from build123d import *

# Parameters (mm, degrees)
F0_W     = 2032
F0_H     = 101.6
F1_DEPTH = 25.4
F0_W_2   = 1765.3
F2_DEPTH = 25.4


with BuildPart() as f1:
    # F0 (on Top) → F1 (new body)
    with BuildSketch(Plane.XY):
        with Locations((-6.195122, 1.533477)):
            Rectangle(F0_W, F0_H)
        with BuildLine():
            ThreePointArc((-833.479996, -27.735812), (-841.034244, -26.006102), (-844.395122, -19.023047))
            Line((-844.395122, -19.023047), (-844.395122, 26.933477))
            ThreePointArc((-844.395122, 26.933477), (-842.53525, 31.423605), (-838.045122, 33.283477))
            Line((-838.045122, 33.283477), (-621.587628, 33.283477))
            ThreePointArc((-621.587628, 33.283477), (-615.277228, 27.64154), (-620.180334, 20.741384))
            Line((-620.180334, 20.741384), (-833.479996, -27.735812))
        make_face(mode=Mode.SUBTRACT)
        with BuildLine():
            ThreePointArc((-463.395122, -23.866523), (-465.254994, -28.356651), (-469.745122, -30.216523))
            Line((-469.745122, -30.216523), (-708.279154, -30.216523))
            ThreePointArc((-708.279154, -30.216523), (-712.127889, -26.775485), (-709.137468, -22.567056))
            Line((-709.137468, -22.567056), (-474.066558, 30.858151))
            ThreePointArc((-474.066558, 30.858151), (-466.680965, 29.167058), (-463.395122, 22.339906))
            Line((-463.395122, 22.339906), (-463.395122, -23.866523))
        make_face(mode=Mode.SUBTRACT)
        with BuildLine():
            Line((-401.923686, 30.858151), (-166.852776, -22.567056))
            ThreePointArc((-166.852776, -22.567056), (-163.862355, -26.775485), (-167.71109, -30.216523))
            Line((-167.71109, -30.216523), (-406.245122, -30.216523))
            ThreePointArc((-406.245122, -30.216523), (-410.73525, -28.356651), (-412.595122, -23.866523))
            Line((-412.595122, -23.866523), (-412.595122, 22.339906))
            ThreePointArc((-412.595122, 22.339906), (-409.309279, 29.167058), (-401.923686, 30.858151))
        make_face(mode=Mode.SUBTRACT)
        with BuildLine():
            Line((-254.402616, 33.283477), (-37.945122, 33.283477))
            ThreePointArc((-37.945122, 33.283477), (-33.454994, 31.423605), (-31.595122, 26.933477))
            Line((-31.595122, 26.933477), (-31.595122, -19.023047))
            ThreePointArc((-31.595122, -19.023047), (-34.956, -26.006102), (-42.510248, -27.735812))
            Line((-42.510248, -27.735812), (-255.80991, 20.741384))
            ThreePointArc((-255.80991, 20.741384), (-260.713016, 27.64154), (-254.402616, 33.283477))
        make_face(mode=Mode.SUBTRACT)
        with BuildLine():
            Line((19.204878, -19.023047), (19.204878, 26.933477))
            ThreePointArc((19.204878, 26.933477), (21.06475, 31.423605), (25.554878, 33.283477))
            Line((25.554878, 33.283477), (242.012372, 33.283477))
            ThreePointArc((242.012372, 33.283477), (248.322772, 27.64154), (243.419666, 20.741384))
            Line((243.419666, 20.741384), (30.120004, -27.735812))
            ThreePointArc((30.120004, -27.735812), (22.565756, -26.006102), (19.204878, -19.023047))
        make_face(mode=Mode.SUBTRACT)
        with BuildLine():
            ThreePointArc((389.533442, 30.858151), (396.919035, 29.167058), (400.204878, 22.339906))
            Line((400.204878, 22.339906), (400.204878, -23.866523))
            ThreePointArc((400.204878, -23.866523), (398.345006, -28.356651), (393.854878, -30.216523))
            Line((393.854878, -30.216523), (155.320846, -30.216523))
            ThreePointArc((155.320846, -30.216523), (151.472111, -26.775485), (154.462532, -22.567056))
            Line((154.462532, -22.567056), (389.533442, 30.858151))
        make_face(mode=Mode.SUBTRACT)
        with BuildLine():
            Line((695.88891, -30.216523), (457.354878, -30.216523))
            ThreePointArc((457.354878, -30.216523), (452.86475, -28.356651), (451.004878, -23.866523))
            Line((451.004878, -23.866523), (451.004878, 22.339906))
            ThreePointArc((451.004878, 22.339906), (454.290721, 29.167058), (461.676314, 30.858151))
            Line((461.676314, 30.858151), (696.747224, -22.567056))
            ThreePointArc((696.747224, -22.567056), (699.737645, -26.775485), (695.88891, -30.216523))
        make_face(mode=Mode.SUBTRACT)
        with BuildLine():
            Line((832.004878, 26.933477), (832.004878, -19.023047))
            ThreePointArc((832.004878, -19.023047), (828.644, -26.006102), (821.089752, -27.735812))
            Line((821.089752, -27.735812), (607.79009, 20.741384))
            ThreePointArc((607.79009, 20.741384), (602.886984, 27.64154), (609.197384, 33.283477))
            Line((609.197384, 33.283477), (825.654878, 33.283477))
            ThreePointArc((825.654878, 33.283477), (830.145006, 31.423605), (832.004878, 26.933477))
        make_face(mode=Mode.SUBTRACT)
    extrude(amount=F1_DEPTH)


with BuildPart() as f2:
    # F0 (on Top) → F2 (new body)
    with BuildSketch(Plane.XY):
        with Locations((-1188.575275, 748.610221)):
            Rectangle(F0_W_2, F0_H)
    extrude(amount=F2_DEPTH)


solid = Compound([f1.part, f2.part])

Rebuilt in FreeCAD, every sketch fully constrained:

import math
import FreeCAD as App
import Part
import Sketcher
Q = App.Units.Quantity

doc = App.newDocument("Part")
body = doc.addObject("PartDesign::Body", "Body")

# Sketch on XY plane
sketch1 = doc.addObject("Sketcher::SketchObject", "Sketch")
body.addObject(sketch1)
sketch1.AttachmentSupport = (doc.XY_Plane, [""])
sketch1.MapMode = "FlatFace"
sketch1.addGeometry(Part.LineSegment(App.Vector(-1022.2, 52.3, 0), App.Vector(-1022.2, -49.3, 0)), False)
sketch1.addGeometry(Part.LineSegment(App.Vector(-1022.2, -49.3, 0), App.Vector(1009.8, -49.3, 0)), False)
sketch1.addGeometry(Part.LineSegment(App.Vector(1009.8, -49.3, 0), App.Vector(1009.8, 52.3, 0)), False)
sketch1.addGeometry(Part.LineSegment(App.Vector(1009.8, 52.3, 0), App.Vector(-1022.2, 52.3, 0)), False)
sketch1.addGeometry(Part.LineSegment(App.Vector(-463.4, 22.3, 0), App.Vector(-463.4, -23.9, 0)), False)
sketch1.addGeometry(Part.ArcOfCircle(Part.Circle(App.Vector(-469.7, -23.9, 0), App.Vector(0, 0, 1), 6.4), math.radians(-90), math.radians(0)), False)
sketch1.addGeometry(Part.LineSegment(App.Vector(-469.7, -30.2, 0), App.Vector(-708.3, -30.2, 0)), False)
sketch1.addGeometry(Part.ArcOfCircle(Part.Circle(App.Vector(-708.3, -26.3, 0), App.Vector(0, 0, 1), 3.9), math.radians(103), math.radians(270)), False)
sketch1.addGeometry(Part.LineSegment(App.Vector(-709.1, -22.6, 0), App.Vector(-474.1, 30.9, 0)), False)
sketch1.addGeometry(Part.ArcOfCircle(Part.Circle(App.Vector(-472.1, 22.3, 0), App.Vector(0, 0, 1), 8.7), math.radians(0), math.radians(103)), False)
sketch1.addGeometry(Part.ArcOfCircle(Part.Circle(App.Vector(-403.9, 22.3, 0), App.Vector(0, 0, 1), 8.7), math.radians(77), math.radians(180)), False)
sketch1.addGeometry(Part.LineSegment(App.Vector(-401.9, 30.9, 0), App.Vector(-166.9, -22.6, 0)), False)
sketch1.addGeometry(Part.ArcOfCircle(Part.Circle(App.Vector(-167.7, -26.3, 0), App.Vector(0, 0, 1), 3.9), math.radians(-90), math.radians(77)), False)
sketch1.addGeometry(Part.LineSegment(App.Vector(-167.7, -30.2, 0), App.Vector(-406.2, -30.2, 0)), False)
sketch1.addGeometry(Part.ArcOfCircle(Part.Circle(App.Vector(-406.2, -23.9, 0), App.Vector(0, 0, 1), 6.4), math.radians(-180), math.radians(-90)), False)
sketch1.addGeometry(Part.LineSegment(App.Vector(-412.6, -23.9, 0), App.Vector(-412.6, 22.3, 0)), False)
sketch1.addGeometry(Part.LineSegment(App.Vector(154.5, -22.6, 0), App.Vector(389.5, 30.9, 0)), False)
sketch1.addGeometry(Part.ArcOfCircle(Part.Circle(App.Vector(391.5, 22.3, 0), App.Vector(0, 0, 1), 8.7), math.radians(0), math.radians(103)), False)
sketch1.addGeometry(Part.LineSegment(App.Vector(400.2, 22.3, 0), App.Vector(400.2, -23.9, 0)), False)
sketch1.addGeometry(Part.ArcOfCircle(Part.Circle(App.Vector(393.9, -23.9, 0), App.Vector(0, 0, 1), 6.4), math.radians(-90), math.radians(0)), False)
sketch1.addGeometry(Part.LineSegment(App.Vector(393.9, -30.2, 0), App.Vector(155.3, -30.2, 0)), False)
sketch1.addGeometry(Part.ArcOfCircle(Part.Circle(App.Vector(155.3, -26.3, 0), App.Vector(0, 0, 1), 3.9), math.radians(103), math.radians(270)), False)
sketch1.addGeometry(Part.ArcOfCircle(Part.Circle(App.Vector(695.9, -26.3, 0), App.Vector(0, 0, 1), 3.9), math.radians(-90), math.radians(77)), False)
sketch1.addGeometry(Part.LineSegment(App.Vector(695.9, -30.2, 0), App.Vector(457.4, -30.2, 0)), False)
sketch1.addGeometry(Part.ArcOfCircle(Part.Circle(App.Vector(457.4, -23.9, 0), App.Vector(0, 0, 1), 6.4), math.radians(-180), math.radians(-90)), False)
sketch1.addGeometry(Part.LineSegment(App.Vector(451, -23.9, 0), App.Vector(451, 22.3, 0)), False)
sketch1.addGeometry(Part.ArcOfCircle(Part.Circle(App.Vector(459.7, 22.3, 0), App.Vector(0, 0, 1), 8.7), math.radians(77), math.radians(180)), False)
sketch1.addGeometry(Part.LineSegment(App.Vector(461.7, 30.9, 0), App.Vector(696.7, -22.6, 0)), False)
sketch1.addGeometry(Part.LineSegment(App.Vector(-620.2, 20.7, 0), App.Vector(-833.5, -27.7, 0)), False)
sketch1.addGeometry(Part.ArcOfCircle(Part.Circle(App.Vector(-835.5, -19, 0), App.Vector(0, 0, 1), 8.9), math.radians(-180), math.radians(-77)), False)
sketch1.addGeometry(Part.LineSegment(App.Vector(-844.4, -19, 0), App.Vector(-844.4, 26.9, 0)), False)
sketch1.addGeometry(Part.ArcOfCircle(Part.Circle(App.Vector(-838, 26.9, 0), App.Vector(0, 0, 1), 6.4), math.radians(90), math.radians(180)), False)
sketch1.addGeometry(Part.LineSegment(App.Vector(-838, 33.3, 0), App.Vector(-621.6, 33.3, 0)), False)
sketch1.addGeometry(Part.ArcOfCircle(Part.Circle(App.Vector(-621.6, 26.9, 0), App.Vector(0, 0, 1), 6.3), math.radians(-77), math.radians(90)), False)
sketch1.addGeometry(Part.ArcOfCircle(Part.Circle(App.Vector(-254.4, 26.9, 0), App.Vector(0, 0, 1), 6.3), math.radians(90), math.radians(257)), False)
sketch1.addGeometry(Part.LineSegment(App.Vector(-254.4, 33.3, 0), App.Vector(-37.9, 33.3, 0)), False)
sketch1.addGeometry(Part.ArcOfCircle(Part.Circle(App.Vector(-37.9, 26.9, 0), App.Vector(0, 0, 1), 6.4), math.radians(0), math.radians(90)), False)
sketch1.addGeometry(Part.LineSegment(App.Vector(-31.6, 26.9, 0), App.Vector(-31.6, -19, 0)), False)
sketch1.addGeometry(Part.ArcOfCircle(Part.Circle(App.Vector(-40.5, -19, 0), App.Vector(0, 0, 1), 8.9), math.radians(-103), math.radians(0)), False)
sketch1.addGeometry(Part.LineSegment(App.Vector(-42.5, -27.7, 0), App.Vector(-255.8, 20.7, 0)), False)
sketch1.addGeometry(Part.ArcOfCircle(Part.Circle(App.Vector(28.1, -19, 0), App.Vector(0, 0, 1), 8.9), math.radians(-180), math.radians(-77)), False)
sketch1.addGeometry(Part.LineSegment(App.Vector(19.2, -19, 0), App.Vector(19.2, 26.9, 0)), False)
sketch1.addGeometry(Part.ArcOfCircle(Part.Circle(App.Vector(25.6, 26.9, 0), App.Vector(0, 0, 1), 6.4), math.radians(90), math.radians(180)), False)
sketch1.addGeometry(Part.LineSegment(App.Vector(25.6, 33.3, 0), App.Vector(242, 33.3, 0)), False)
sketch1.addGeometry(Part.ArcOfCircle(Part.Circle(App.Vector(242, 26.9, 0), App.Vector(0, 0, 1), 6.3), math.radians(-77), math.radians(90)), False)
sketch1.addGeometry(Part.LineSegment(App.Vector(243.4, 20.7, 0), App.Vector(30.1, -27.7, 0)), False)
sketch1.addGeometry(Part.ArcOfCircle(Part.Circle(App.Vector(825.7, 26.9, 0), App.Vector(0, 0, 1), 6.4), math.radians(0), math.radians(90)), False)
sketch1.addGeometry(Part.LineSegment(App.Vector(832, 26.9, 0), App.Vector(832, -19, 0)), False)
sketch1.addGeometry(Part.ArcOfCircle(Part.Circle(App.Vector(823.1, -19, 0), App.Vector(0, 0, 1), 8.9), math.radians(-103), math.radians(0)), False)
sketch1.addGeometry(Part.LineSegment(App.Vector(821.1, -27.7, 0), App.Vector(607.8, 20.7, 0)), False)
sketch1.addGeometry(Part.ArcOfCircle(Part.Circle(App.Vector(609.2, 26.9, 0), App.Vector(0, 0, 1), 6.3), math.radians(90), math.radians(257)), False)
sketch1.addGeometry(Part.LineSegment(App.Vector(609.2, 33.3, 0), App.Vector(825.7, 33.3, 0)), False)
sketch1.addConstraint(Sketcher.Constraint("Coincident", 0, 2, 1, 1))
sketch1.addConstraint(Sketcher.Constraint("Coincident", 1, 2, 2, 1))
sketch1.addConstraint(Sketcher.Constraint("Coincident", 2, 2, 3, 1))
sketch1.addConstraint(Sketcher.Constraint("Coincident", 3, 2, 0, 1))
sketch1.addConstraint(Sketcher.Constraint("Tangent", 4, 2, 5, 2))
sketch1.addConstraint(Sketcher.Constraint("Tangent", 5, 1, 6, 1))
sketch1.addConstraint(Sketcher.Constraint("Tangent", 6, 2, 7, 2))
sketch1.addConstraint(Sketcher.Constraint("Tangent", 7, 1, 8, 1))
sketch1.addConstraint(Sketcher.Constraint("Tangent", 8, 2, 9, 2))
sketch1.addConstraint(Sketcher.Constraint("Tangent", 9, 1, 4, 1))
sketch1.addConstraint(Sketcher.Constraint("Tangent", 10, 1, 11, 1))
sketch1.addConstraint(Sketcher.Constraint("Tangent", 11, 2, 12, 2))
sketch1.addConstraint(Sketcher.Constraint("Tangent", 12, 1, 13, 1))
sketch1.addConstraint(Sketcher.Constraint("Tangent", 13, 2, 14, 2))
sketch1.addConstraint(Sketcher.Constraint("Tangent", 14, 1, 15, 1))
sketch1.addConstraint(Sketcher.Constraint("Tangent", 15, 2, 10, 2))
sketch1.addConstraint(Sketcher.Constraint("Tangent", 16, 2, 17, 2))
sketch1.addConstraint(Sketcher.Constraint("Tangent", 17, 1, 18, 1))
sketch1.addConstraint(Sketcher.Constraint("Tangent", 18, 2, 19, 2))
sketch1.addConstraint(Sketcher.Constraint("Tangent", 19, 1, 20, 1))
sketch1.addConstraint(Sketcher.Constraint("Tangent", 20, 2, 21, 2))
sketch1.addConstraint(Sketcher.Constraint("Tangent", 21, 1, 16, 1))
sketch1.addConstraint(Sketcher.Constraint("Tangent", 22, 1, 23, 1))
sketch1.addConstraint(Sketcher.Constraint("Tangent", 23, 2, 24, 2))
sketch1.addConstraint(Sketcher.Constraint("Tangent", 24, 1, 25, 1))
sketch1.addConstraint(Sketcher.Constraint("Tangent", 25, 2, 26, 2))
sketch1.addConstraint(Sketcher.Constraint("Tangent", 26, 1, 27, 1))
sketch1.addConstraint(Sketcher.Constraint("Tangent", 27, 2, 22, 2))
sketch1.addConstraint(Sketcher.Constraint("Tangent", 28, 2, 29, 2))
sketch1.addConstraint(Sketcher.Constraint("Tangent", 29, 1, 30, 1))
sketch1.addConstraint(Sketcher.Constraint("Tangent", 30, 2, 31, 2))
sketch1.addConstraint(Sketcher.Constraint("Tangent", 31, 1, 32, 1))
sketch1.addConstraint(Sketcher.Constraint("Tangent", 32, 2, 33, 2))
sketch1.addConstraint(Sketcher.Constraint("Tangent", 33, 1, 28, 1))
sketch1.addConstraint(Sketcher.Constraint("Tangent", 34, 1, 35, 1))
sketch1.addConstraint(Sketcher.Constraint("Tangent", 35, 2, 36, 2))
sketch1.addConstraint(Sketcher.Constraint("Tangent", 36, 1, 37, 1))
sketch1.addConstraint(Sketcher.Constraint("Tangent", 37, 2, 38, 2))
sketch1.addConstraint(Sketcher.Constraint("Tangent", 38, 1, 39, 1))
sketch1.addConstraint(Sketcher.Constraint("Tangent", 39, 2, 34, 2))
sketch1.addConstraint(Sketcher.Constraint("Tangent", 40, 1, 41, 1))
sketch1.addConstraint(Sketcher.Constraint("Tangent", 41, 2, 42, 2))
sketch1.addConstraint(Sketcher.Constraint("Tangent", 42, 1, 43, 1))
sketch1.addConstraint(Sketcher.Constraint("Tangent", 43, 2, 44, 2))
sketch1.addConstraint(Sketcher.Constraint("Tangent", 44, 1, 45, 1))
sketch1.addConstraint(Sketcher.Constraint("Tangent", 45, 2, 40, 2))
sketch1.addConstraint(Sketcher.Constraint("Tangent", 46, 1, 47, 1))
sketch1.addConstraint(Sketcher.Constraint("Tangent", 47, 2, 48, 2))
sketch1.addConstraint(Sketcher.Constraint("Tangent", 48, 1, 49, 1))
sketch1.addConstraint(Sketcher.Constraint("Tangent", 49, 2, 50, 2))
sketch1.addConstraint(Sketcher.Constraint("Tangent", 50, 1, 51, 1))
sketch1.addConstraint(Sketcher.Constraint("Tangent", 51, 2, 46, 2))
sketch1.addConstraint(Sketcher.Constraint("Vertical", 0))
sketch1.addConstraint(Sketcher.Constraint("Horizontal", 1))
sketch1.addConstraint(Sketcher.Constraint("Vertical", 2))
sketch1.addConstraint(Sketcher.Constraint("Horizontal", 3))
sketch1.addConstraint(Sketcher.Constraint("Vertical", 4))
sketch1.addConstraint(Sketcher.Constraint("Horizontal", 6))
sketch1.addConstraint(Sketcher.Constraint("Horizontal", 13))
sketch1.addConstraint(Sketcher.Constraint("Vertical", 15))
sketch1.addConstraint(Sketcher.Constraint("Vertical", 18))
sketch1.addConstraint(Sketcher.Constraint("Horizontal", 20))
sketch1.addConstraint(Sketcher.Constraint("Horizontal", 23))
sketch1.addConstraint(Sketcher.Constraint("Vertical", 25))
sketch1.addConstraint(Sketcher.Constraint("Vertical", 30))
sketch1.addConstraint(Sketcher.Constraint("Horizontal", 32))
sketch1.addConstraint(Sketcher.Constraint("Horizontal", 35))
sketch1.addConstraint(Sketcher.Constraint("Vertical", 37))
sketch1.addConstraint(Sketcher.Constraint("Vertical", 41))
sketch1.addConstraint(Sketcher.Constraint("Horizontal", 43))
sketch1.addConstraint(Sketcher.Constraint("Vertical", 47))
sketch1.addConstraint(Sketcher.Constraint("Horizontal", 51))
sketch1.addConstraint(Sketcher.Constraint("Equal", 9, 10))
sketch1.addConstraint(Sketcher.Constraint("Equal", 7, 12))
sketch1.addConstraint(Sketcher.Constraint("Equal", 5, 14))
sketch1.addConstraint(Sketcher.Constraint("Equal", 10, 17))
sketch1.addConstraint(Sketcher.Constraint("Equal", 14, 19))
sketch1.addConstraint(Sketcher.Constraint("Equal", 12, 21))
sketch1.addConstraint(Sketcher.Constraint("Equal", 21, 22))
sketch1.addConstraint(Sketcher.Constraint("Equal", 19, 24))
sketch1.addConstraint(Sketcher.Constraint("Equal", 17, 26))
sketch1.addConstraint(Sketcher.Constraint("Equal", 24, 31))
sketch1.addConstraint(Sketcher.Constraint("Equal", 31, 33))
sketch1.addConstraint(Sketcher.Constraint("Equal", 33, 34))
sketch1.addConstraint(Sketcher.Constraint("Equal", 34, 36))
sketch1.addConstraint(Sketcher.Constraint("Equal", 29, 38))
sketch1.addConstraint(Sketcher.Constraint("Equal", 38, 40))
sketch1.addConstraint(Sketcher.Constraint("Equal", 36, 42))
sketch1.addConstraint(Sketcher.Constraint("Equal", 42, 44))
sketch1.addConstraint(Sketcher.Constraint("Equal", 44, 46))
sketch1.addConstraint(Sketcher.Constraint("Equal", 40, 48))
sketch1.addConstraint(Sketcher.Constraint("Equal", 46, 50))
sketch1.addConstraint(Sketcher.Constraint("Parallel", 8, 16))
sketch1.addConstraint(Sketcher.Constraint("Parallel", 11, 27))
sketch1.addConstraint(Sketcher.Constraint("Parallel", 16, 28))
sketch1.addConstraint(Sketcher.Constraint("Parallel", 27, 39))
sketch1.addConstraint(Sketcher.Constraint("Parallel", 28, 45))
sketch1.addConstraint(Sketcher.Constraint("Parallel", 39, 49))
sketch1.addConstraint(Sketcher.Constraint("Horizontal", 9, 3, 10, 3))
sketch1.addConstraint(Sketcher.Constraint("Horizontal", 7, 3, 12, 3))
sketch1.addConstraint(Sketcher.Constraint("Horizontal", 10, 3, 17, 3))
sketch1.addConstraint(Sketcher.Constraint("Horizontal", 14, 3, 19, 3))
sketch1.addConstraint(Sketcher.Constraint("Horizontal", 21, 3, 22, 3))
sketch1.addConstraint(Sketcher.Constraint("Horizontal", 17, 3, 26, 3))
sketch1.addConstraint(Sketcher.Constraint("Horizontal", 33, 3, 34, 3))
sketch1.addConstraint(Sketcher.Constraint("Horizontal", 29, 3, 38, 3))
sketch1.addConstraint(Sketcher.Constraint("Horizontal", 38, 3, 40, 3))
sketch1.addConstraint(Sketcher.Constraint("Horizontal", 36, 3, 42, 3))
sketch1.addConstraint(Sketcher.Constraint("Horizontal", 44, 3, 46, 3))
sketch1.addConstraint(Sketcher.Constraint("Horizontal", 40, 3, 48, 3))
sketch1.addConstraint(Sketcher.Constraint("Equal", 6, 13))
sketch1.addConstraint(Sketcher.Constraint("DistanceX", 1, 1, 1, 2, Q("80 in")))
sketch1.addConstraint(Sketcher.Constraint("DistanceY", 0, 2, 0, 1, Q("4 in")))
sketch1.addConstraint(Sketcher.Constraint("Radius", 5, Q("0.25 in")))
sketch1.addConstraint(Sketcher.Constraint("Radius", 9, Q("8.735472 mm")))
sketch1.addConstraint(Sketcher.Constraint("Radius", 7, Q("3.872887 mm")))
sketch1.addConstraint(Sketcher.Constraint("Radius", 29, Q("8.934953 mm")))
sketch1.addConstraint(Sketcher.Constraint("DistanceX", 6, 2, 6, 1, Q("238.534032 mm")))
sketch1.addConstraint(Sketcher.Constraint("DistanceY", 4, 2, 4, 1, Q("46.206429 mm")))
sketch1.addConstraint(Sketcher.Constraint("Distance", 28, Q("218.739078 mm")))
sketch1.addConstraint(Sketcher.Constraint("DistanceX", 10, 3, -1, 1, Q("403.85965 mm")))
sketch1.addConstraint(Sketcher.Constraint("DistanceX", -1, 1, 22, 3, Q("695.88891 mm")))
sketch1.addConstraint(Sketcher.Constraint("DistanceX", 29, 3, -1, 1, Q("835.460169 mm")))
sketch1.addConstraint(Sketcher.Constraint("DistanceX", -1, 1, 40, 3, Q("28.139831 mm")))
sketch1.addConstraint(Sketcher.Constraint("DistanceX", 0, 2, -1, 1, Q("1022.195122 mm")))
sketch1.addConstraint(Sketcher.Constraint("DistanceX", 4, 2, -1, 1, Q("463.395122 mm")))
sketch1.addConstraint(Sketcher.Constraint("DistanceY", -1, 1, 8, 2, Q("30.858151 mm")))
sketch1.addConstraint(Sketcher.Constraint("DistanceX", -1, 1, 16, 2, Q("389.533442 mm")))
sketch1.addConstraint(Sketcher.Constraint("DistanceY", 28, 2, -1, 1, Q("27.735812 mm")))
sketch1.addConstraint(Sketcher.Constraint("DistanceX", 35, 2, -1, 1, Q("37.945122 mm")))
sketch1.addConstraint(Sketcher.Constraint("DistanceX", -1, 1, 46, 1, Q("832.004878 mm")))
sketch1.addConstraint(Sketcher.Constraint("DistanceY", 0, 2, -1, 1, Q("49.266523 mm")))
pad1 = doc.addObject("PartDesign::Pad", "Pad")
body.addObject(pad1)
pad1.Profile = sketch1
pad1.Length = Q("1 in")
body2 = doc.addObject("PartDesign::Body", "Body001")

# Sketch on XY plane
sketch2 = doc.addObject("Sketcher::SketchObject", "Sketch001")
body2.addObject(sketch2)
sketch2.AttachmentSupport = (doc.getObject("XY_Plane001"), [""])
sketch2.MapMode = "FlatFace"
sketch2.addGeometry(Part.LineSegment(App.Vector(-2071, 799, 0), App.Vector(-2071, 698, 0)), False)
sketch2.addGeometry(Part.LineSegment(App.Vector(-2071, 698, 0), App.Vector(-306, 698, 0)), False)
sketch2.addGeometry(Part.LineSegment(App.Vector(-306, 698, 0), App.Vector(-306, 799, 0)), False)
sketch2.addGeometry(Part.LineSegment(App.Vector(-306, 799, 0), App.Vector(-2071, 799, 0)), False)
sketch2.addConstraint(Sketcher.Constraint("Coincident", 0, 2, 1, 1))
sketch2.addConstraint(Sketcher.Constraint("Coincident", 1, 2, 2, 1))
sketch2.addConstraint(Sketcher.Constraint("Coincident", 2, 2, 3, 1))
sketch2.addConstraint(Sketcher.Constraint("Coincident", 3, 2, 0, 1))
sketch2.addConstraint(Sketcher.Constraint("Vertical", 0))
sketch2.addConstraint(Sketcher.Constraint("Horizontal", 1))
sketch2.addConstraint(Sketcher.Constraint("Vertical", 2))
sketch2.addConstraint(Sketcher.Constraint("Horizontal", 3))
sketch2.addConstraint(Sketcher.Constraint("DistanceY", 0, 2, 0, 1, Q("4 in")))
sketch2.addConstraint(Sketcher.Constraint("DistanceX", 1, 1, 1, 2, Q("69.5 in")))
sketch2.addConstraint(Sketcher.Constraint("DistanceY", -1, 1, 0, 2, Q("697.810221 mm")))
sketch2.addConstraint(Sketcher.Constraint("DistanceX", 0, 2, -1, 1, Q("2071.225275 mm")))
pad2 = doc.addObject("PartDesign::Pad", "Pad001")
body2.addObject(pad2)
pad2.Profile = sketch2
pad2.Length = Q("1 in")

doc.recompute()
